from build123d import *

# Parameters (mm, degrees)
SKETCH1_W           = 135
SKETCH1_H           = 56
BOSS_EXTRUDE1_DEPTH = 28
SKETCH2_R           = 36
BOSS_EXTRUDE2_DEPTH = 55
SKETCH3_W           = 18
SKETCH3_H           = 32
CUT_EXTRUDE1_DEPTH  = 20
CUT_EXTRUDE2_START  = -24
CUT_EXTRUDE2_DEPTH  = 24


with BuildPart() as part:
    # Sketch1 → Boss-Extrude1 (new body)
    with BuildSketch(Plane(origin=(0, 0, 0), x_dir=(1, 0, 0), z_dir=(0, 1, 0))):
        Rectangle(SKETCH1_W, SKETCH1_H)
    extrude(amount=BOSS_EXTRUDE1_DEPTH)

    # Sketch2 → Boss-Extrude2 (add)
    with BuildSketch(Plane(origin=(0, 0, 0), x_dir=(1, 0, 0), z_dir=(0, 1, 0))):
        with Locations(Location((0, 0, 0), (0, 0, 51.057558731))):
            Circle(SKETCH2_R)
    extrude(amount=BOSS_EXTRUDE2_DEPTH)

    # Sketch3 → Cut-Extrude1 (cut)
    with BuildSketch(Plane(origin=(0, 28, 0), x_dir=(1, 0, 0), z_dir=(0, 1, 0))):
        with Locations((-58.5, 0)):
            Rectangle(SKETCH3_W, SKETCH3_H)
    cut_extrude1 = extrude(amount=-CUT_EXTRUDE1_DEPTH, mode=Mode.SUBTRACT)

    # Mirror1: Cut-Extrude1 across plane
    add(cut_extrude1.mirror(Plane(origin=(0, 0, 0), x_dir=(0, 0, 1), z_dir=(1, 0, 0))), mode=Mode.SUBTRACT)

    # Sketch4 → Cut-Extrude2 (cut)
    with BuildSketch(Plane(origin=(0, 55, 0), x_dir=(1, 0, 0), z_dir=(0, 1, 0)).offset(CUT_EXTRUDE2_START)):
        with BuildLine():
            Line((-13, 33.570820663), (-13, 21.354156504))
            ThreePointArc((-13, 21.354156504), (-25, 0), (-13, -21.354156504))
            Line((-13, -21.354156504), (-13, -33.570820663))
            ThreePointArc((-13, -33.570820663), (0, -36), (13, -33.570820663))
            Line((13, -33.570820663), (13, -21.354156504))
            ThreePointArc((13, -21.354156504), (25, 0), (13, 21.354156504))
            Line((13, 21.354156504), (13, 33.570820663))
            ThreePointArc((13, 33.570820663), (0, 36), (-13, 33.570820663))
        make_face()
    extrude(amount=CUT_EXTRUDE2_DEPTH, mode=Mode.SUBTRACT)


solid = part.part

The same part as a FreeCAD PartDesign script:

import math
import FreeCAD as App
import Part
import Sketcher

V = App.Vector
Q = App.Units.Quantity


def add_polygon(sketch, points):
    """Adds a closed chain of lines whose ends are joined by coincident constraints."""
    first, n = sketch.GeometryCount, len(points)
    for a, b in zip(points, points[1:] + points[:1]):
        sketch.addGeometry(Part.LineSegment(App.Vector(*a, 0), App.Vector(*b, 0)), False)
    for i in range(n):
        sketch.addConstraint(Sketcher.Constraint("Coincident", first + i, 2, first + (i + 1) % n, 1))

doc = App.newDocument("Part")
body = doc.addObject("PartDesign::Body", "Body")

sketch1 = body.newObject("Sketcher::SketchObject", "Sketch")
sketch1.AttachmentSupport = (doc.getObject("XZ_Plane"), [""])
sketch1.MapMode = "FlatFace"
add_polygon(sketch1, [(-68, -28), (-68, 28), (68, 28), (68, -28)])
sketch1.addConstraint(Sketcher.Constraint("Vertical", 0))
sketch1.addConstraint(Sketcher.Constraint("Horizontal", 1))
sketch1.addConstraint(Sketcher.Constraint("Vertical", 2))
sketch1.addConstraint(Sketcher.Constraint("Horizontal", 3))
sketch1.addConstraint(Sketcher.Constraint("Symmetric", 0, 2, 2, 2, -1, 1))
sketch1.addConstraint(Sketcher.Constraint("DistanceX", 1, 1, 1, 2, Q("135 mm")))
sketch1.addConstraint(Sketcher.Constraint("DistanceY", 0, 1, 0, 2, Q("56 mm")))
pad1 = body.newObject("PartDesign::Pad", "Pad")
pad1.Profile = sketch1
pad1.Length = 28
pad1.Reversed = True

sketch2 = body.newObject("Sketcher::SketchObject", "Sketch001")
sketch2.AttachmentSupport = (doc.getObject("XZ_Plane"), [""])
sketch2.MapMode = "FlatFace"
sketch2.addGeometry(Part.Circle(V(0, 0, 0), V(0, 0, 1), 36), False)
sketch2.addConstraint(Sketcher.Constraint("Coincident", 0, 3, -1, 1))
sketch2.addConstraint(Sketcher.Constraint("Diameter", 0, Q("72 mm")))
pad2 = body.newObject("PartDesign::Pad", "Pad001")
pad2.Profile = sketch2
pad2.Length = 55
pad2.Reversed = True

sketch3 = body.newObject("Sketcher::SketchObject", "Sketch002")
sketch3.AttachmentSupport = (doc.getObject("XZ_Plane"), [""])
sketch3.MapMode = "FlatFace"
sketch3.AttachmentOffset = App.Placement(V(0, 0, -28), App.Rotation())
add_polygon(sketch3, [(-68, -16), (-68, 16), (-50, 16), (-50, -16)])
sketch3.addConstraint(Sketcher.Constraint("Vertical", 0))
sketch3.addConstraint(Sketcher.Constraint("Horizontal", 1))
sketch3.addConstraint(Sketcher.Constraint("Vertical", 2))
sketch3.addConstraint(Sketcher.Constraint("Horizontal", 3))
sketch3.addConstraint(Sketcher.Constraint("DistanceX", 1, 1, 1, 2, Q("18 mm")))
sketch3.addConstraint(Sketcher.Constraint("DistanceY", 0, 1, 0, 2, Q("32 mm")))
sketch3.addConstraint(Sketcher.Constraint("DistanceY", -1, 1, 0, 2, Q("16 mm")))
sketch3.addConstraint(Sketcher.Constraint("DistanceX", 0, 2, -1, 1, Q("67.5 mm")))
pocket1 = body.newObject("PartDesign::Pocket", "Pocket")
pocket1.Profile = sketch3
pocket1.Length = 20
pocket1.Reversed = True
doc.recompute()

mirrored = body.newObject("PartDesign::Mirrored", "Mirrored")
mirrored.Originals = [pocket1]
mirrored.MirrorPlane = (doc.getObject("YZ_Plane"), [""])
body.Tip = mirrored

sketch4 = body.newObject("Sketcher::SketchObject", "Sketch003")
sketch4.AttachmentSupport = (doc.getObject("XZ_Plane"), [""])
sketch4.MapMode = "FlatFace"
sketch4.AttachmentOffset = App.Placement(V(0, 0, -31), App.Rotation())
sketch4.addGeometry(Part.LineSegment(V(-13, -34, 0), V(-13, -21, 0)), False)
sketch4.addGeometry(Part.ArcOfCircle(Part.Circle(V(0, 0, 0), V(0, 0, 1), 25), math.radians(121), math.radians(239)), False)
sketch4.addGeometry(Part.LineSegment(V(-13, 21, 0), V(-13, 34, 0)), False)
sketch4.addGeometry(Part.ArcOfCircle(Part.Circle(V(0, 0, 0), V(0, 0, 1), 36), math.radians(69), math.radians(111)), False)
sketch4.addGeometry(Part.LineSegment(V(13, 34, 0), V(13, 21, 0)), False)
sketch4.addGeometry(Part.ArcOfCircle(Part.Circle(V(0, 0, 0), V(0, 0, 1), 25), math.radians(-59), math.radians(59)), False)
sketch4.addGeometry(Part.LineSegment(V(13, -21, 0), V(13, -34, 0)), False)
sketch4.addGeometry(Part.ArcOfCircle(Part.Circle(V(0, 0, 0), V(0, 0, 1), 36), math.radians(-111), math.radians(-69)), False)
sketch4.addConstraint(Sketcher.Constraint("Coincident", 0, 2, 1, 2))
sketch4.addConstraint(Sketcher.Constraint("Coincident", 1, 1, 2, 1))
sketch4.addConstraint(Sketcher.Constraint("Coincident", 2, 2, 3, 2))
sketch4.addConstraint(Sketcher.Constraint("Coincident", 3, 1, 4, 1))
sketch4.addConstraint(Sketcher.Constraint("Coincident", 4, 2, 5, 2))
sketch4.addConstraint(Sketcher.Constraint("Coincident", 5, 1, 6, 1))
sketch4.addConstraint(Sketcher.Constraint("Coincident", 6, 2, 7, 2))
sketch4.addConstraint(Sketcher.Constraint("Coincident", 7, 1, 0, 1))
sketch4.addConstraint(Sketcher.Constraint("Vertical", 0))
sketch4.addConstraint(Sketcher.Constraint("Vertical", 2))
sketch4.addConstraint(Sketcher.Constraint("Vertical", 4))
sketch4.addConstraint(Sketcher.Constraint("Vertical", 6))
sketch4.addConstraint(Sketcher.Constraint("Coincident", 1, 3, -1, 1))
sketch4.addConstraint(Sketcher.Constraint("Coincident", 3, 3, -1, 1))
sketch4.addConstraint(Sketcher.Constraint("Coincident", 5, 3, -1, 1))
sketch4.addConstraint(Sketcher.Constraint("Coincident", 7, 3, -1, 1))
sketch4.addConstraint(Sketcher.Constraint("Equal", 1, 5))
sketch4.addConstraint(Sketcher.Constraint("Equal", 3, 7))
sketch4.addConstraint(Sketcher.Constraint("Horizontal", 2, 2, 3, 1))
sketch4.addConstraint(Sketcher.Constraint("Horizontal", 0, 2, 5, 1))
sketch4.addConstraint(Sketcher.Constraint("Vertical", 0, 2, 1, 1))
sketch4.addConstraint(Sketcher.Constraint("Radius", 1, Q("25 mm")))
sketch4.addConstraint(Sketcher.Constraint("Radius", 3, Q("36 mm")))
sketch4.addConstraint(Sketcher.Constraint("DistanceX", 0, 2, -1, 1, Q("13 mm")))
pocket2 = body.newObject("PartDesign::Pocket", "Pocket001")
pocket2.Profile = sketch4
pocket2.Length = 24

doc.recompute()
